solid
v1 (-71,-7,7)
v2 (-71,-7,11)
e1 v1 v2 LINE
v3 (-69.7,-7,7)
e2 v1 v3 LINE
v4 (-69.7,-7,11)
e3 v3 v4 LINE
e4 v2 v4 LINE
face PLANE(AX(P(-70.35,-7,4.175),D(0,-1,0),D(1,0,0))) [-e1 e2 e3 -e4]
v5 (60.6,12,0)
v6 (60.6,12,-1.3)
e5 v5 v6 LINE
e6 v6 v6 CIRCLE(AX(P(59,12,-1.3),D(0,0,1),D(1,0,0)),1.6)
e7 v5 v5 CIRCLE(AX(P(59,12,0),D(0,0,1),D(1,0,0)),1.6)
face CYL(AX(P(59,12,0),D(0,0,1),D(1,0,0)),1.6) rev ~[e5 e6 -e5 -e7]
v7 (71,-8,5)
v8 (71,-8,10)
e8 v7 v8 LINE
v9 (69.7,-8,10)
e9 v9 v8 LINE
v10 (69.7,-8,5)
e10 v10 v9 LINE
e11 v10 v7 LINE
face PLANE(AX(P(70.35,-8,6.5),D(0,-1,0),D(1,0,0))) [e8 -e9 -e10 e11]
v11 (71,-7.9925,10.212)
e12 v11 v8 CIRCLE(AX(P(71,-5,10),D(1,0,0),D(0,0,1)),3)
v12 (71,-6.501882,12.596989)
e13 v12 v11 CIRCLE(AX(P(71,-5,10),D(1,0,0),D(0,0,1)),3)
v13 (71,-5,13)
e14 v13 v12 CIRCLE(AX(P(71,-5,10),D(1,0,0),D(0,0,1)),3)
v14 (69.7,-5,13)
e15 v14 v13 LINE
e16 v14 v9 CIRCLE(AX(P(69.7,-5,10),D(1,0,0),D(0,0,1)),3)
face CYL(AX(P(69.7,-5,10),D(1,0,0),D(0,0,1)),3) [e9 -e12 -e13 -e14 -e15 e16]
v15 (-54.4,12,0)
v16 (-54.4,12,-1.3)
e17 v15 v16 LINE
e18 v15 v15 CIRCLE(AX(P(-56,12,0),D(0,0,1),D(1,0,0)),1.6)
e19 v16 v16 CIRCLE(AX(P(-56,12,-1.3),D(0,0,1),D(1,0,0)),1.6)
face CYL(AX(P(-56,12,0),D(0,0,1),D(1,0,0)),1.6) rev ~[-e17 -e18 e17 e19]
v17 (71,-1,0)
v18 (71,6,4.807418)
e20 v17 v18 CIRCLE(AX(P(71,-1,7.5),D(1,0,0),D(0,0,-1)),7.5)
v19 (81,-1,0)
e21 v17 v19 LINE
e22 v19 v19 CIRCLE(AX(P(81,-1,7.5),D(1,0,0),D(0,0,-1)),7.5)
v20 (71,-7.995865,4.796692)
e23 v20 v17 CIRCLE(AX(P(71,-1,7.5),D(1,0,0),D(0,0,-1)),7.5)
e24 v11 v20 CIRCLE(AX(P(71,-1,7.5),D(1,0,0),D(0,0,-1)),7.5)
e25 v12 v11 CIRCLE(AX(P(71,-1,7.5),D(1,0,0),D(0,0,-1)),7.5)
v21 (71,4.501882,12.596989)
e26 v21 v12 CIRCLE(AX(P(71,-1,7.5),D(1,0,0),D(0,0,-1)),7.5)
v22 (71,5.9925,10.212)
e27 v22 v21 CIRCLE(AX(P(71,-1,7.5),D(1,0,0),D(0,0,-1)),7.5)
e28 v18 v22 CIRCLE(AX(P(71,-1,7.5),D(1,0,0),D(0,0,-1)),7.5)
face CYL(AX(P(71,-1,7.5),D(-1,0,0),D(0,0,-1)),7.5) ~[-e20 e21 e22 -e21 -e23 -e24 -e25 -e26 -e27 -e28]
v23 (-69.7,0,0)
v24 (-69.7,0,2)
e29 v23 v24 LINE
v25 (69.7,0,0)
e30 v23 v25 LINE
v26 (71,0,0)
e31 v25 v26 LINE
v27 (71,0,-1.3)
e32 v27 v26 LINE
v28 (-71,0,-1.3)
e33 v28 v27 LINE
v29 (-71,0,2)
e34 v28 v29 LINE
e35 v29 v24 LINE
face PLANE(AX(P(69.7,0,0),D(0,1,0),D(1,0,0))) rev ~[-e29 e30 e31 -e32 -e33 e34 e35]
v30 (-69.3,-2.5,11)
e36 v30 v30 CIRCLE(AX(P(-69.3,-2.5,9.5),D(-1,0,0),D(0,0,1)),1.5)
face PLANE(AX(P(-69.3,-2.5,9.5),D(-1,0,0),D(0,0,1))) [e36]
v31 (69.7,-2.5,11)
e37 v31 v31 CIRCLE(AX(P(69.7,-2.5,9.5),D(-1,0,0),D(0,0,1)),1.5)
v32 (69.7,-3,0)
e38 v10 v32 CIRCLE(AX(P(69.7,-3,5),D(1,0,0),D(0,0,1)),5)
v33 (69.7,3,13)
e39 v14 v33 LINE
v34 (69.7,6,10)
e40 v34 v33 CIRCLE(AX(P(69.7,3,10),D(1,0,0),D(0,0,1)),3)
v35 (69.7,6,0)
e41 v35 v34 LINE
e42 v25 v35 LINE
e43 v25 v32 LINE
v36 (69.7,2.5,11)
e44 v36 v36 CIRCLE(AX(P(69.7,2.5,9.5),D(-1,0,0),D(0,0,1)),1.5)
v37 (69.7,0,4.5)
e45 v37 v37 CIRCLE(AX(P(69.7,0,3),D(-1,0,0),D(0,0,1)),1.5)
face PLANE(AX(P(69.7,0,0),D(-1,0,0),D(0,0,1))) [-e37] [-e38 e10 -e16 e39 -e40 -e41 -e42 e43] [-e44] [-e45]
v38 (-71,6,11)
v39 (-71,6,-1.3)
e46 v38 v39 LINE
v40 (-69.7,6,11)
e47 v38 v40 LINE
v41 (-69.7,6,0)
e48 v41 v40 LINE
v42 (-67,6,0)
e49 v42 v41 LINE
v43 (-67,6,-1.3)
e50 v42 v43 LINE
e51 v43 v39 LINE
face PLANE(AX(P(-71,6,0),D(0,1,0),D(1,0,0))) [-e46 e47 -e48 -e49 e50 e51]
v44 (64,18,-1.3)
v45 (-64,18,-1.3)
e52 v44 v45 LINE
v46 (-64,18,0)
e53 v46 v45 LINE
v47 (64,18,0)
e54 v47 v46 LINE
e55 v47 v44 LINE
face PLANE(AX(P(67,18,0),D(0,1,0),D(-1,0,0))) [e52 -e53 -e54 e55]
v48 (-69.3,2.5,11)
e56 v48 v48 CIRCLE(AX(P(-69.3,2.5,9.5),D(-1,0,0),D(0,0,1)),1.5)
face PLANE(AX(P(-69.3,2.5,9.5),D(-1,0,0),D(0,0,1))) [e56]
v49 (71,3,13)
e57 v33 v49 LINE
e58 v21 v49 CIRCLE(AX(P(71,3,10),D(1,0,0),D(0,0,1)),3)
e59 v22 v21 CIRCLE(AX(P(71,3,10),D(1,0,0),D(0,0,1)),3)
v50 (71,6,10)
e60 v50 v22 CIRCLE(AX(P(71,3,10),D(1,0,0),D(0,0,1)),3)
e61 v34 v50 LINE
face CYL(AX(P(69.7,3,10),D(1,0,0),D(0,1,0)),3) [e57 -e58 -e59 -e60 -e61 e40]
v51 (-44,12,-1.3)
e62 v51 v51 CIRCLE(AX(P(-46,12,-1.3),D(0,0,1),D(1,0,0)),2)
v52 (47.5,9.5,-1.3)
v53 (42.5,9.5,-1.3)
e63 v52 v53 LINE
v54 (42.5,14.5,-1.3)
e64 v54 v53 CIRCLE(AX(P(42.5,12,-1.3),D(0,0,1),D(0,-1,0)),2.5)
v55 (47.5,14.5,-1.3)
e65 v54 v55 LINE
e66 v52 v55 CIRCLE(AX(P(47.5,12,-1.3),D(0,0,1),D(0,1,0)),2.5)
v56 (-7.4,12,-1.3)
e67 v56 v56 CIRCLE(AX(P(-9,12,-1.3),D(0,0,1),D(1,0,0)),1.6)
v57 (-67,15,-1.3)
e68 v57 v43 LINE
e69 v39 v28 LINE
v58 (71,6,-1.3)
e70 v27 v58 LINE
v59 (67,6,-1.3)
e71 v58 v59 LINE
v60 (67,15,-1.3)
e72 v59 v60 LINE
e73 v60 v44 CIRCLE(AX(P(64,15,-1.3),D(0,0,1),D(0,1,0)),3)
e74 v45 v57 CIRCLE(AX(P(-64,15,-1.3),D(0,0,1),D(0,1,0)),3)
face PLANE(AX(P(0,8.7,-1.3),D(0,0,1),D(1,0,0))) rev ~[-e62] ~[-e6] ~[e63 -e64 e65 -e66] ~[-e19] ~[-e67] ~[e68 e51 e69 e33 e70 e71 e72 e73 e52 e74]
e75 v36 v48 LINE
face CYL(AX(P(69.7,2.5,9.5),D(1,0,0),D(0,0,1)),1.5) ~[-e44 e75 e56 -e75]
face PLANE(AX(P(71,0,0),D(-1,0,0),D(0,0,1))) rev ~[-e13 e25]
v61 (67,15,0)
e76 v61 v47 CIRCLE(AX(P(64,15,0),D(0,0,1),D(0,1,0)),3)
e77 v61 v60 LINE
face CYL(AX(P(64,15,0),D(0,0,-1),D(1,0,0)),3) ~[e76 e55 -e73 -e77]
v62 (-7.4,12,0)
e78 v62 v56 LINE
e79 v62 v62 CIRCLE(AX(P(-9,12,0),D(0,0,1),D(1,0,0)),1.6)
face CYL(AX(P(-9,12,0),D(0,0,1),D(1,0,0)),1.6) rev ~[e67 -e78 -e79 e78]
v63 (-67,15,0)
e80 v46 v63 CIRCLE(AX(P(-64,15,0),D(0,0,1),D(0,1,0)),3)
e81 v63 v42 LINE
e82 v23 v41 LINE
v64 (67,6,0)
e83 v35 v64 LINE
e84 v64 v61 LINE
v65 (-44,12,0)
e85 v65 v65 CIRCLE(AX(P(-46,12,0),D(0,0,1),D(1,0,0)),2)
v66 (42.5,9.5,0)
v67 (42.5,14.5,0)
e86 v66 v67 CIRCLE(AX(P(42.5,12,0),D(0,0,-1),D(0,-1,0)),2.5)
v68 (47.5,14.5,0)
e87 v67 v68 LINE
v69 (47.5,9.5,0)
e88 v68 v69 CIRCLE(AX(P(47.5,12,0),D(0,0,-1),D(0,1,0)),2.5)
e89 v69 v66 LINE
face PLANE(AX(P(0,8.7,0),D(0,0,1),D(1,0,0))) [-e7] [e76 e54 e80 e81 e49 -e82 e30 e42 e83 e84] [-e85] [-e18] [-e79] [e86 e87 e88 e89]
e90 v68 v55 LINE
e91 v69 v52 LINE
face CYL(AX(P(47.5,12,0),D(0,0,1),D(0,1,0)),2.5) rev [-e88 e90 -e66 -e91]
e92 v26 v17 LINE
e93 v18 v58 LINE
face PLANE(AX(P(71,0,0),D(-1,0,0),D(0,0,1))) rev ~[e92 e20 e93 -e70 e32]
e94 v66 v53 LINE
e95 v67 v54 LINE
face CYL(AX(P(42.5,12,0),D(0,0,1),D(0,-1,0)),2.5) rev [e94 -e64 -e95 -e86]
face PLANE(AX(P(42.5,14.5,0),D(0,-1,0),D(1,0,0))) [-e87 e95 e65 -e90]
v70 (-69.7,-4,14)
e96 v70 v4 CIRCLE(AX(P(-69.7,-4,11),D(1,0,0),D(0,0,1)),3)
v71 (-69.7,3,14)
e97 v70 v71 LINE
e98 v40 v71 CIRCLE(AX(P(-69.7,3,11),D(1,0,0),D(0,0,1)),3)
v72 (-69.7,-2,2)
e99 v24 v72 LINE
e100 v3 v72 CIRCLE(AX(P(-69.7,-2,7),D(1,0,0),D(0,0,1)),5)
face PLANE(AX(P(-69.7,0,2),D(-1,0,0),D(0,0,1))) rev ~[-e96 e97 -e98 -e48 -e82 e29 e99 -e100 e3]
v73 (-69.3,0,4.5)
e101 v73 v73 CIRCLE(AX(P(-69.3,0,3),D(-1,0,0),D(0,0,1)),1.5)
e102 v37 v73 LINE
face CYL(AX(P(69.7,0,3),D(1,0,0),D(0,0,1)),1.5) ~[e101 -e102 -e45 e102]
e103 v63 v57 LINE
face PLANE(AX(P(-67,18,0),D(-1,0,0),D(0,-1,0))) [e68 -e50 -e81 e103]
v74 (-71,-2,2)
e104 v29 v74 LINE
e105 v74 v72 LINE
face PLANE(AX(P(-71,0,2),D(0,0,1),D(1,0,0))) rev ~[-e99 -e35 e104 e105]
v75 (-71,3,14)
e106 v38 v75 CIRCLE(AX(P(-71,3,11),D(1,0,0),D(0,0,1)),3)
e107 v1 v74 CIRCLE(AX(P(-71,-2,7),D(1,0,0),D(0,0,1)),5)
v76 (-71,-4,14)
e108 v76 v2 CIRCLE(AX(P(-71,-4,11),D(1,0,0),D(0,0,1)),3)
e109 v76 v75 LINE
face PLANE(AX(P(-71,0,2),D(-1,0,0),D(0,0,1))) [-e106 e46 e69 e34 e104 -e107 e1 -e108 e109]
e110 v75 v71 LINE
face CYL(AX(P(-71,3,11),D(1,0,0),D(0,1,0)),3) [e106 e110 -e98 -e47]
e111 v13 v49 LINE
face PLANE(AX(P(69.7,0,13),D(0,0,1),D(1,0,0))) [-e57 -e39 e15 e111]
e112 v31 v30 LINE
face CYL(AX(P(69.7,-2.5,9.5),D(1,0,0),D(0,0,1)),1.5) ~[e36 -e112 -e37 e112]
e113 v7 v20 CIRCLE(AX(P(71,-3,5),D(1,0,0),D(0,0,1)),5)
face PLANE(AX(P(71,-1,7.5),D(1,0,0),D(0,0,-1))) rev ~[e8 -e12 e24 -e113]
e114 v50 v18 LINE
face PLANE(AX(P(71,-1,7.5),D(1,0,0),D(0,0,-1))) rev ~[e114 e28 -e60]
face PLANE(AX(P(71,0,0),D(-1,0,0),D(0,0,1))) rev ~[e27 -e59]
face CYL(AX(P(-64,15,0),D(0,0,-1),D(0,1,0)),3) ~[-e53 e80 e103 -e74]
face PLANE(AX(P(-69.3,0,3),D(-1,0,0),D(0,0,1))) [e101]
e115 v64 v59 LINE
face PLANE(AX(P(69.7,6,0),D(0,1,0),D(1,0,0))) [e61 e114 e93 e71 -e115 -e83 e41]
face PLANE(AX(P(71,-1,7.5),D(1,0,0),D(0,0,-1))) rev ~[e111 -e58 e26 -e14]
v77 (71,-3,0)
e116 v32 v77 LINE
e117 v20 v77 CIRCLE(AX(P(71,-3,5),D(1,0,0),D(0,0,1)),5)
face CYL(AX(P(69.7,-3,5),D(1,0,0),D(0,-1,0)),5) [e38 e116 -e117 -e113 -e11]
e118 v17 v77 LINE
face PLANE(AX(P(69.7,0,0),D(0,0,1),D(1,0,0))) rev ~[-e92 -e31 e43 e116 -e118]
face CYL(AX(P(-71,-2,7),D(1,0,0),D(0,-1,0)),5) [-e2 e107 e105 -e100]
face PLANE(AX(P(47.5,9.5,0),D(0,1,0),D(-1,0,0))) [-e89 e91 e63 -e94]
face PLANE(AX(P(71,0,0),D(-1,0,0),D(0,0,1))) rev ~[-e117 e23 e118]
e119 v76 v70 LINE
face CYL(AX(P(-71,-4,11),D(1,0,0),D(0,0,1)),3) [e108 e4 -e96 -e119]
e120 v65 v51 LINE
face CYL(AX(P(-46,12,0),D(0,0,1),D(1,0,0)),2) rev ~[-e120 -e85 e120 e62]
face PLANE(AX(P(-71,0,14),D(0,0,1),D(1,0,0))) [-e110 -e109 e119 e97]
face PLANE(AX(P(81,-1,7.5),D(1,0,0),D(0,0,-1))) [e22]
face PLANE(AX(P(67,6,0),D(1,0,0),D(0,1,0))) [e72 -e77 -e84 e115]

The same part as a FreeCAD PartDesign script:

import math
import FreeCAD as App
import Part
import Sketcher
from FreeCAD import Vector
Q = App.Units.Quantity


def edges_at(feature, points):
    """Names of the edges that pass closest to the given points."""
    edges = feature.Shape.Edges
    near = lambda p: min(range(len(edges)), key=lambda i: edges[i].distToShape(Part.Vertex(*p))[0])
    return sorted({f"Edge{near(p) + 1}" for p in points})

doc = App.newDocument("Part")
body = doc.addObject("PartDesign::Body", "Body")

# Sketch on XY plane
sketch1 = body.newObject("Sketcher::SketchObject", "Sketch")
sketch1.AttachmentSupport = (doc.getObject("XY_Plane"), [""])
sketch1.MapMode = "FlatFace"
sketch1.addGeometry([
    Part.LineSegment(Vector(-71, 0, 0), Vector(71, 0, 0)),  # 0
    Part.LineSegment(Vector(71, 0, 0), Vector(71, 6, 0)),  # 1
    Part.LineSegment(Vector(71, 6, 0), Vector(67, 6, 0)),  # 2
    Part.LineSegment(Vector(67, 6, 0), Vector(67, 18, 0)),  # 3
    Part.LineSegment(Vector(67, 18, 0), Vector(-67, 18, 0)),  # 4
    Part.LineSegment(Vector(-67, 18, 0), Vector(-67, 6, 0)),  # 5
    Part.LineSegment(Vector(-67, 6, 0), Vector(-71, 6, 0)),  # 6
    Part.LineSegment(Vector(-71, 6, 0), Vector(-71, 0, 0)),  # 7
], False)
sketch1.addConstraint([
    Sketcher.Constraint("Coincident", 0, 2, 1, 1),
    Sketcher.Constraint("Coincident", 1, 2, 2, 1),
    Sketcher.Constraint("Coincident", 2, 2, 3, 1),
    Sketcher.Constraint("Coincident", 3, 2, 4, 1),
    Sketcher.Constraint("Coincident", 4, 2, 5, 1),
    Sketcher.Constraint("Coincident", 5, 2, 6, 1),
    Sketcher.Constraint("Coincident", 6, 2, 7, 1),
    Sketcher.Constraint("Coincident", 7, 2, 0, 1),
    Sketcher.Constraint("Horizontal", 0),
    Sketcher.Constraint("Vertical", 1),
    Sketcher.Constraint("Horizontal", 2),
    Sketcher.Constraint("Vertical", 3),
    Sketcher.Constraint("Horizontal", 4),
    Sketcher.Constraint("Vertical", 5),
    Sketcher.Constraint("Horizontal", 6),
    Sketcher.Constraint("Vertical", 7),
    Sketcher.Constraint("Symmetric", 0, 2, 7, 2, -1, 1),
    Sketcher.Constraint("Symmetric", 2, 2, 5, 2, -2),
    Sketcher.Constraint("DistanceX", 0, 1, 0, 2, Q("142 mm")),
    Sketcher.Constraint("DistanceX", 2, 2, 2, 1, Q("4 mm")),
    Sketcher.Constraint("DistanceY", 1, 1, 1, 2, Q("6 mm")),
    Sketcher.Constraint("DistanceY", 3, 1, 3, 2, Q("12 mm")),
])
pad1 = body.newObject("PartDesign::Pad", "Pad")
pad1.Profile = sketch1
pad1.Length = 1.3
pad1.Reversed = True
doc.recompute()

fillet = body.newObject("PartDesign::Fillet", "Fillet")
fillet.Base = (pad1, edges_at(pad1, [(-67, 18, -0.65), (67, 18, -0.65)]))
fillet.Radius = 3

# Sketch on XY plane
sketch2 = body.newObject("Sketcher::SketchObject", "Sketch001")
sketch2.AttachmentSupport = (doc.getObject("XY_Plane"), [""])
sketch2.MapMode = "FlatFace"
sketch2.addGeometry([
    Part.LineSegment(Vector(-71, 6, 0), Vector(-71, 0, 0)),
    Part.LineSegment(Vector(-71, 0, 0), Vector(-69.7, 0, 0)),
    Part.LineSegment(Vector(-69.7, 0, 0), Vector(-69.7, 6, 0)),
    Part.LineSegment(Vector(-69.7, 6, 0), Vector(-71, 6, 0)),
], False)
sketch2.addConstraint([
    Sketcher.Constraint("Coincident", 0, 2, 1, 1),
    Sketcher.Constraint("Coincident", 1, 2, 2, 1),
    Sketcher.Constraint("Coincident", 2, 2, 3, 1),
    Sketcher.Constraint("Coincident", 3, 2, 0, 1),
    Sketcher.Constraint("Vertical", 0),
    Sketcher.Constraint("Horizontal", 1),
    Sketcher.Constraint("Vertical", 2),
    Sketcher.Constraint("Horizontal", 3),
    Sketcher.Constraint("PointOnObject", 0, 2, -1),
    Sketcher.Constraint("DistanceY", 0, 2, 0, 1, Q("6 mm")),
    Sketcher.Constraint("DistanceX", 1, 1, 1, 2, Q("1.3 mm")),
    Sketcher.Constraint("DistanceX", 0, 2, -1, 1, Q("71 mm")),
])
pad2 = body.newObject("PartDesign::Pad", "Pad001")
pad2.Profile = sketch2
pad2.Length = 14
doc.recompute()

fillet2 = body.newObject("PartDesign::Fillet", "Fillet001")
fillet2.Base = (pad2, edges_at(pad2, [(-70.35, 6, 14)]))
fillet2.Radius = 3

# Sketch on XZ plane
sketch3 = body.newObject("Sketcher::SketchObject", "Sketch002")
sketch3.AttachmentSupport = (doc.getObject("XZ_Plane"), [""])
sketch3.MapMode = "FlatFace"
sketch3.addGeometry([
    Part.LineSegment(Vector(-71, 14, 0), Vector(-71, 6.3, 0)),
    Part.LineSegment(Vector(-71, 6.3, 0), Vector(-69.7, 6.3, 0)),
    Part.LineSegment(Vector(-69.7, 6.3, 0), Vector(-69.7, 14, 0)),
    Part.LineSegment(Vector(-69.7, 14, 0), Vector(-71, 14, 0)),
], False)
sketch3.addConstraint([
    Sketcher.Constraint("Coincident", 0, 2, 1, 1),
    Sketcher.Constraint("Coincident", 1, 2, 2, 1),
    Sketcher.Constraint("Coincident", 2, 2, 3, 1),
    Sketcher.Constraint("Coincident", 3, 2, 0, 1),
    Sketcher.Constraint("Vertical", 0),
    Sketcher.Constraint("Horizontal", 1),
    Sketcher.Constraint("Vertical", 2),
    Sketcher.Constraint("Horizontal", 3),
    Sketcher.Constraint("DistanceX", 1, 1, 1, 2, Q("1.3 mm")),
    Sketcher.Constraint("DistanceX", 0, 2, -1, 1, Q("71 mm")),
    Sketcher.Constraint("DistanceY", -1, 1, 2, 2, Q("14 mm")),
    Sketcher.Constraint("DistanceY", 0, 2, 0, 1, Q("7.65 mm")),
])
pad3 = body.newObject("PartDesign::Pad", "Pad002")
pad3.Profile = sketch3
pad3.Length = 7

# Sketch on XZ plane
sketch4 = body.newObject("Sketcher::SketchObject", "Sketch003")
sketch4.AttachmentSupport = (doc.getObject("XZ_Plane"), [""])
sketch4.MapMode = "FlatFace"
sketch4.addGeometry([
    Part.LineSegment(Vector(-71, 6.3, 0), Vector(-71, 2, 0)),
    Part.LineSegment(Vector(-71, 2, 0), Vector(-69.7, 2, 0)),
    Part.LineSegment(Vector(-69.7, 2, 0), Vector(-69.7, 6.3, 0)),
    Part.LineSegment(Vector(-69.7, 6.3, 0), Vector(-71, 6.3, 0)),
], False)
sketch4.addConstraint([
    Sketcher.Constraint("Coincident", 0, 2, 1, 1),
    Sketcher.Constraint("Coincident", 1, 2, 2, 1),
    Sketcher.Constraint("Coincident", 2, 2, 3, 1),
    Sketcher.Constraint("Coincident", 3, 2, 0, 1),
    Sketcher.Constraint("Vertical", 0),
    Sketcher.Constraint("Horizontal", 1),
    Sketcher.Constraint("Vertical", 2),
    Sketcher.Constraint("Horizontal", 3),
    Sketcher.Constraint("DistanceX", 1, 1, 1, 2, Q("1.3 mm")),
    Sketcher.Constraint("DistanceX", 0, 2, -1, 1, Q("71 mm")),
    Sketcher.Constraint("DistanceY", -1, 1, 0, 2, Q("2 mm")),
    Sketcher.Constraint("DistanceY", 0, 2, 0, 1, Q("4.35 mm")),
])
pad4 = body.newObject("PartDesign::Pad", "Pad003")
pad4.Profile = sketch4
pad4.Length = 7
doc.recompute()

fillet3 = body.newObject("PartDesign::Fillet", "Fillet002")
fillet3.Base = (pad4, edges_at(pad4, [(-70.35, -7, 14)]))
fillet3.Radius = 3
doc.recompute()

fillet4 = body.newObject("PartDesign::Fillet", "Fillet003")
fillet4.Base = (fillet3, edges_at(fillet3, [(-70.35, -7, 2)]))
fillet4.Radius = 5

# Sketch on XY plane
sketch5 = body.newObject("Sketcher::SketchObject", "Sketch004")
sketch5.AttachmentSupport = (doc.getObject("XY_Plane"), [""])
sketch5.MapMode = "FlatFace"
sketch5.addGeometry([
    Part.LineSegment(Vector(69.7, 6, 0), Vector(69.7, 0, 0)),
    Part.LineSegment(Vector(69.7, 0, 0), Vector(71, 0, 0)),
    Part.LineSegment(Vector(71, 0, 0), Vector(71, 6, 0)),
    Part.LineSegment(Vector(71, 6, 0), Vector(69.7, 6, 0)),
], False)
sketch5.addConstraint([
    Sketcher.Constraint("Coincident", 0, 2, 1, 1),
    Sketcher.Constraint("Coincident", 1, 2, 2, 1),
    Sketcher.Constraint("Coincident", 2, 2, 3, 1),
    Sketcher.Constraint("Coincident", 3, 2, 0, 1),
    Sketcher.Constraint("Vertical", 0),
    Sketcher.Constraint("Horizontal", 1),
    Sketcher.Constraint("Vertical", 2),
    Sketcher.Constraint("Horizontal", 3),
    Sketcher.Constraint("PointOnObject", 0, 2, -1),
    Sketcher.Constraint("DistanceY", 0, 2, 0, 1, Q("6 mm")),
    Sketcher.Constraint("DistanceX", 1, 1, 1, 2, Q("1.3 mm")),
    Sketcher.Constraint("DistanceX", -1, 1, 1, 2, Q("71 mm")),
])
pad5 = body.newObject("PartDesign::Pad", "Pad004")
pad5.Profile = sketch5
pad5.Length = 13

# Sketch on XZ plane
sketch6 = body.newObject("Sketcher::SketchObject", "Sketch005")
sketch6.AttachmentSupport = (doc.getObject("XZ_Plane"), [""])
sketch6.MapMode = "FlatFace"
sketch6.addGeometry([
    Part.LineSegment(Vector(69.7, 13, 0), Vector(69.7, 0, 0)),
    Part.LineSegment(Vector(69.7, 0, 0), Vector(71, 0, 0)),
    Part.LineSegment(Vector(71, 0, 0), Vector(71, 13, 0)),
    Part.LineSegment(Vector(71, 13, 0), Vector(69.7, 13, 0)),
], False)
sketch6.addConstraint([
    Sketcher.Constraint("Coincident", 0, 2, 1, 1),
    Sketcher.Constraint("Coincident", 1, 2, 2, 1),
    Sketcher.Constraint("Coincident", 2, 2, 3, 1),
    Sketcher.Constraint("Coincident", 3, 2, 0, 1),
    Sketcher.Constraint("Vertical", 0),
    Sketcher.Constraint("Horizontal", 1),
    Sketcher.Constraint("Vertical", 2),
    Sketcher.Constraint("Horizontal", 3),
    Sketcher.Constraint("PointOnObject", 0, 2, -1),
    Sketcher.Constraint("DistanceY", 0, 2, 0, 1, Q("13 mm")),
    Sketcher.Constraint("DistanceX", 1, 1, 1, 2, Q("1.3 mm")),
    Sketcher.Constraint("DistanceX", -1, 1, 1, 2, Q("71 mm")),
])
pad6 = body.newObject("PartDesign::Pad", "Pad005")
pad6.Profile = sketch6
pad6.Length = 8
doc.recompute()

fillet5 = body.newObject("PartDesign::Fillet", "Fillet004")
fillet5.Base = (pad6, edges_at(pad6, [(70.35, 6, 13), (70.35, -8, 13)]))
fillet5.Radius = 3
doc.recompute()

fillet6 = body.newObject("PartDesign::Fillet", "Fillet005")
fillet6.Base = (fillet5, edges_at(fillet5, [(70.35, -8, 0)]))
fillet6.Radius = 5

# Sketch on XY plane
sketch7 = body.newObject("Sketcher::SketchObject", "Sketch006")
sketch7.AttachmentSupport = (doc.getObject("XY_Plane"), [""])
sketch7.MapMode = "FlatFace"
sketch7.addGeometry([
    Part.Circle(Vector(-56, 12, 0), Vector(0, 0, 1), 1.6),  # 0
    Part.Circle(Vector(-46, 12, 0), Vector(0, 0, 1), 2),  # 1
    Part.Circle(Vector(-9, 12, 0), Vector(0, 0, 1), 1.6),  # 2
    Part.Circle(Vector(59, 12, 0), Vector(0, 0, 1), 1.6),  # 3
    Part.LineSegment(Vector(47.5, 14.5, 0), Vector(42.5, 14.5, 0)),  # 4
    Part.ArcOfCircle(Part.Circle(Vector(42.5, 12, 0), Vector(0, 0, 1), 2.5), math.radians(90), math.radians(270)),  # 5
    Part.LineSegment(Vector(42.5, 9.5, 0), Vector(47.5, 9.5, 0)),  # 6
    Part.ArcOfCircle(Part.Circle(Vector(47.5, 12, 0), Vector(0, 0, 1), 2.5), math.radians(-90), math.radians(90)),  # 7
], False)
sketch7.addConstraint([
    Sketcher.Constraint("Tangent", 4, 2, 5, 1),
    Sketcher.Constraint("Tangent", 5, 2, 6, 1),
    Sketcher.Constraint("Tangent", 6, 2, 7, 1),
    Sketcher.Constraint("Tangent", 7, 2, 4, 1),
    Sketcher.Constraint("Horizontal", 4),
    Sketcher.Constraint("Horizontal", 6),
    Sketcher.Constraint("Equal", 0, 2),
    Sketcher.Constraint("Equal", 2, 3),
    Sketcher.Constraint("Horizontal", 0, 3, 1, 3),
    Sketcher.Constraint("Horizontal", 1, 3, 2, 3),
    Sketcher.Constraint("Horizontal", 2, 3, 3, 3),
    Sketcher.Constraint("Horizontal", 3, 3, 5, 3),
    Sketcher.Constraint("Diameter", 1, Q("4 mm")),
    Sketcher.Constraint("Diameter", 0, Q("3.2 mm")),
    Sketcher.Constraint("Radius", 5, Q("2.5 mm")),
    Sketcher.Constraint("DistanceX", 4, 2, 4, 1, Q("5 mm")),
    Sketcher.Constraint("DistanceX", 0, 3, -1, 1, Q("56 mm")),
    Sketcher.Constraint("DistanceY", -1, 1, 0, 3, Q("12 mm")),
    Sketcher.Constraint("DistanceX", 1, 3, -1, 1, Q("46 mm")),
    Sketcher.Constraint("DistanceX", 2, 3, -1, 1, Q("9 mm")),
    Sketcher.Constraint("DistanceX", -1, 1, 3, 3, Q("59 mm")),
    Sketcher.Constraint("DistanceX", -1, 1, 5, 3, Q("42.5 mm")),
])
pocket1 = body.newObject("PartDesign::Pocket", "Pocket")
pocket1.Profile = sketch7
pocket1.Length = 8

# Sketch on YZ plane
sketch8 = body.newObject("Sketcher::SketchObject", "Sketch007")
sketch8.AttachmentSupport = (doc.getObject("YZ_Plane"), [""])
sketch8.MapMode = "FlatFace"
sketch8.AttachmentOffset = App.Placement(Vector(0, 0, 71), App.Rotation())
sketch8.addGeometry(Part.Circle(Vector(-1, 8, 0), Vector(0, 0, 1), 8), False)
sketch8.addConstraint([
    Sketcher.Constraint("Diameter", 0, Q("15 mm")),
    Sketcher.Constraint("DistanceX", 0, 3, -1, 1, Q("1 mm")),
    Sketcher.Constraint("DistanceY", -1, 1, 0, 3, Q("7.5 mm")),
])
pad7 = body.newObject("PartDesign::Pad", "Pad006")
pad7.Profile = sketch8
pad7.Length = 10

# Sketch on YZ plane
sketch9 = body.newObject("Sketcher::SketchObject", "Sketch008")
sketch9.AttachmentSupport = (doc.getObject("YZ_Plane"), [""])
sketch9.MapMode = "FlatFace"
sketch9.AttachmentOffset = App.Placement(Vector(0, 0, 69.7), App.Rotation())
sketch9.addGeometry([
    Part.Circle(Vector(2.5, 9.5, 0), Vector(0, 0, 1), 1.5),
    Part.Circle(Vector(-2.5, 9.5, 0), Vector(0, 0, 1), 1.5),
    Part.Circle(Vector(0, 3, 0), Vector(0, 0, 1), 1.5),
], False)
sketch9.addConstraint([
    Sketcher.Constraint("Equal", 0, 1),
    Sketcher.Constraint("Equal", 1, 2),
    Sketcher.Constraint("Symmetric", 0, 3, 1, 3, -2),
    Sketcher.Constraint("PointOnObject", 2, 3, -2),
    Sketcher.Constraint("Diameter", 0, Q("3 mm")),
    Sketcher.Constraint("DistanceY", -1, 1, 2, 3, Q("3 mm")),
    Sketcher.Constraint("DistanceX", 1, 3, 0, 3, Q("5 mm")),
    Sketcher.Constraint("DistanceY", -1, 1, 0, 3, Q("9.5 mm")),
])
pad8 = body.newObject("PartDesign::Pad", "Pad007")
pad8.Profile = sketch9
pad8.Length = 139
pad8.Reversed = True

doc.recompute()
